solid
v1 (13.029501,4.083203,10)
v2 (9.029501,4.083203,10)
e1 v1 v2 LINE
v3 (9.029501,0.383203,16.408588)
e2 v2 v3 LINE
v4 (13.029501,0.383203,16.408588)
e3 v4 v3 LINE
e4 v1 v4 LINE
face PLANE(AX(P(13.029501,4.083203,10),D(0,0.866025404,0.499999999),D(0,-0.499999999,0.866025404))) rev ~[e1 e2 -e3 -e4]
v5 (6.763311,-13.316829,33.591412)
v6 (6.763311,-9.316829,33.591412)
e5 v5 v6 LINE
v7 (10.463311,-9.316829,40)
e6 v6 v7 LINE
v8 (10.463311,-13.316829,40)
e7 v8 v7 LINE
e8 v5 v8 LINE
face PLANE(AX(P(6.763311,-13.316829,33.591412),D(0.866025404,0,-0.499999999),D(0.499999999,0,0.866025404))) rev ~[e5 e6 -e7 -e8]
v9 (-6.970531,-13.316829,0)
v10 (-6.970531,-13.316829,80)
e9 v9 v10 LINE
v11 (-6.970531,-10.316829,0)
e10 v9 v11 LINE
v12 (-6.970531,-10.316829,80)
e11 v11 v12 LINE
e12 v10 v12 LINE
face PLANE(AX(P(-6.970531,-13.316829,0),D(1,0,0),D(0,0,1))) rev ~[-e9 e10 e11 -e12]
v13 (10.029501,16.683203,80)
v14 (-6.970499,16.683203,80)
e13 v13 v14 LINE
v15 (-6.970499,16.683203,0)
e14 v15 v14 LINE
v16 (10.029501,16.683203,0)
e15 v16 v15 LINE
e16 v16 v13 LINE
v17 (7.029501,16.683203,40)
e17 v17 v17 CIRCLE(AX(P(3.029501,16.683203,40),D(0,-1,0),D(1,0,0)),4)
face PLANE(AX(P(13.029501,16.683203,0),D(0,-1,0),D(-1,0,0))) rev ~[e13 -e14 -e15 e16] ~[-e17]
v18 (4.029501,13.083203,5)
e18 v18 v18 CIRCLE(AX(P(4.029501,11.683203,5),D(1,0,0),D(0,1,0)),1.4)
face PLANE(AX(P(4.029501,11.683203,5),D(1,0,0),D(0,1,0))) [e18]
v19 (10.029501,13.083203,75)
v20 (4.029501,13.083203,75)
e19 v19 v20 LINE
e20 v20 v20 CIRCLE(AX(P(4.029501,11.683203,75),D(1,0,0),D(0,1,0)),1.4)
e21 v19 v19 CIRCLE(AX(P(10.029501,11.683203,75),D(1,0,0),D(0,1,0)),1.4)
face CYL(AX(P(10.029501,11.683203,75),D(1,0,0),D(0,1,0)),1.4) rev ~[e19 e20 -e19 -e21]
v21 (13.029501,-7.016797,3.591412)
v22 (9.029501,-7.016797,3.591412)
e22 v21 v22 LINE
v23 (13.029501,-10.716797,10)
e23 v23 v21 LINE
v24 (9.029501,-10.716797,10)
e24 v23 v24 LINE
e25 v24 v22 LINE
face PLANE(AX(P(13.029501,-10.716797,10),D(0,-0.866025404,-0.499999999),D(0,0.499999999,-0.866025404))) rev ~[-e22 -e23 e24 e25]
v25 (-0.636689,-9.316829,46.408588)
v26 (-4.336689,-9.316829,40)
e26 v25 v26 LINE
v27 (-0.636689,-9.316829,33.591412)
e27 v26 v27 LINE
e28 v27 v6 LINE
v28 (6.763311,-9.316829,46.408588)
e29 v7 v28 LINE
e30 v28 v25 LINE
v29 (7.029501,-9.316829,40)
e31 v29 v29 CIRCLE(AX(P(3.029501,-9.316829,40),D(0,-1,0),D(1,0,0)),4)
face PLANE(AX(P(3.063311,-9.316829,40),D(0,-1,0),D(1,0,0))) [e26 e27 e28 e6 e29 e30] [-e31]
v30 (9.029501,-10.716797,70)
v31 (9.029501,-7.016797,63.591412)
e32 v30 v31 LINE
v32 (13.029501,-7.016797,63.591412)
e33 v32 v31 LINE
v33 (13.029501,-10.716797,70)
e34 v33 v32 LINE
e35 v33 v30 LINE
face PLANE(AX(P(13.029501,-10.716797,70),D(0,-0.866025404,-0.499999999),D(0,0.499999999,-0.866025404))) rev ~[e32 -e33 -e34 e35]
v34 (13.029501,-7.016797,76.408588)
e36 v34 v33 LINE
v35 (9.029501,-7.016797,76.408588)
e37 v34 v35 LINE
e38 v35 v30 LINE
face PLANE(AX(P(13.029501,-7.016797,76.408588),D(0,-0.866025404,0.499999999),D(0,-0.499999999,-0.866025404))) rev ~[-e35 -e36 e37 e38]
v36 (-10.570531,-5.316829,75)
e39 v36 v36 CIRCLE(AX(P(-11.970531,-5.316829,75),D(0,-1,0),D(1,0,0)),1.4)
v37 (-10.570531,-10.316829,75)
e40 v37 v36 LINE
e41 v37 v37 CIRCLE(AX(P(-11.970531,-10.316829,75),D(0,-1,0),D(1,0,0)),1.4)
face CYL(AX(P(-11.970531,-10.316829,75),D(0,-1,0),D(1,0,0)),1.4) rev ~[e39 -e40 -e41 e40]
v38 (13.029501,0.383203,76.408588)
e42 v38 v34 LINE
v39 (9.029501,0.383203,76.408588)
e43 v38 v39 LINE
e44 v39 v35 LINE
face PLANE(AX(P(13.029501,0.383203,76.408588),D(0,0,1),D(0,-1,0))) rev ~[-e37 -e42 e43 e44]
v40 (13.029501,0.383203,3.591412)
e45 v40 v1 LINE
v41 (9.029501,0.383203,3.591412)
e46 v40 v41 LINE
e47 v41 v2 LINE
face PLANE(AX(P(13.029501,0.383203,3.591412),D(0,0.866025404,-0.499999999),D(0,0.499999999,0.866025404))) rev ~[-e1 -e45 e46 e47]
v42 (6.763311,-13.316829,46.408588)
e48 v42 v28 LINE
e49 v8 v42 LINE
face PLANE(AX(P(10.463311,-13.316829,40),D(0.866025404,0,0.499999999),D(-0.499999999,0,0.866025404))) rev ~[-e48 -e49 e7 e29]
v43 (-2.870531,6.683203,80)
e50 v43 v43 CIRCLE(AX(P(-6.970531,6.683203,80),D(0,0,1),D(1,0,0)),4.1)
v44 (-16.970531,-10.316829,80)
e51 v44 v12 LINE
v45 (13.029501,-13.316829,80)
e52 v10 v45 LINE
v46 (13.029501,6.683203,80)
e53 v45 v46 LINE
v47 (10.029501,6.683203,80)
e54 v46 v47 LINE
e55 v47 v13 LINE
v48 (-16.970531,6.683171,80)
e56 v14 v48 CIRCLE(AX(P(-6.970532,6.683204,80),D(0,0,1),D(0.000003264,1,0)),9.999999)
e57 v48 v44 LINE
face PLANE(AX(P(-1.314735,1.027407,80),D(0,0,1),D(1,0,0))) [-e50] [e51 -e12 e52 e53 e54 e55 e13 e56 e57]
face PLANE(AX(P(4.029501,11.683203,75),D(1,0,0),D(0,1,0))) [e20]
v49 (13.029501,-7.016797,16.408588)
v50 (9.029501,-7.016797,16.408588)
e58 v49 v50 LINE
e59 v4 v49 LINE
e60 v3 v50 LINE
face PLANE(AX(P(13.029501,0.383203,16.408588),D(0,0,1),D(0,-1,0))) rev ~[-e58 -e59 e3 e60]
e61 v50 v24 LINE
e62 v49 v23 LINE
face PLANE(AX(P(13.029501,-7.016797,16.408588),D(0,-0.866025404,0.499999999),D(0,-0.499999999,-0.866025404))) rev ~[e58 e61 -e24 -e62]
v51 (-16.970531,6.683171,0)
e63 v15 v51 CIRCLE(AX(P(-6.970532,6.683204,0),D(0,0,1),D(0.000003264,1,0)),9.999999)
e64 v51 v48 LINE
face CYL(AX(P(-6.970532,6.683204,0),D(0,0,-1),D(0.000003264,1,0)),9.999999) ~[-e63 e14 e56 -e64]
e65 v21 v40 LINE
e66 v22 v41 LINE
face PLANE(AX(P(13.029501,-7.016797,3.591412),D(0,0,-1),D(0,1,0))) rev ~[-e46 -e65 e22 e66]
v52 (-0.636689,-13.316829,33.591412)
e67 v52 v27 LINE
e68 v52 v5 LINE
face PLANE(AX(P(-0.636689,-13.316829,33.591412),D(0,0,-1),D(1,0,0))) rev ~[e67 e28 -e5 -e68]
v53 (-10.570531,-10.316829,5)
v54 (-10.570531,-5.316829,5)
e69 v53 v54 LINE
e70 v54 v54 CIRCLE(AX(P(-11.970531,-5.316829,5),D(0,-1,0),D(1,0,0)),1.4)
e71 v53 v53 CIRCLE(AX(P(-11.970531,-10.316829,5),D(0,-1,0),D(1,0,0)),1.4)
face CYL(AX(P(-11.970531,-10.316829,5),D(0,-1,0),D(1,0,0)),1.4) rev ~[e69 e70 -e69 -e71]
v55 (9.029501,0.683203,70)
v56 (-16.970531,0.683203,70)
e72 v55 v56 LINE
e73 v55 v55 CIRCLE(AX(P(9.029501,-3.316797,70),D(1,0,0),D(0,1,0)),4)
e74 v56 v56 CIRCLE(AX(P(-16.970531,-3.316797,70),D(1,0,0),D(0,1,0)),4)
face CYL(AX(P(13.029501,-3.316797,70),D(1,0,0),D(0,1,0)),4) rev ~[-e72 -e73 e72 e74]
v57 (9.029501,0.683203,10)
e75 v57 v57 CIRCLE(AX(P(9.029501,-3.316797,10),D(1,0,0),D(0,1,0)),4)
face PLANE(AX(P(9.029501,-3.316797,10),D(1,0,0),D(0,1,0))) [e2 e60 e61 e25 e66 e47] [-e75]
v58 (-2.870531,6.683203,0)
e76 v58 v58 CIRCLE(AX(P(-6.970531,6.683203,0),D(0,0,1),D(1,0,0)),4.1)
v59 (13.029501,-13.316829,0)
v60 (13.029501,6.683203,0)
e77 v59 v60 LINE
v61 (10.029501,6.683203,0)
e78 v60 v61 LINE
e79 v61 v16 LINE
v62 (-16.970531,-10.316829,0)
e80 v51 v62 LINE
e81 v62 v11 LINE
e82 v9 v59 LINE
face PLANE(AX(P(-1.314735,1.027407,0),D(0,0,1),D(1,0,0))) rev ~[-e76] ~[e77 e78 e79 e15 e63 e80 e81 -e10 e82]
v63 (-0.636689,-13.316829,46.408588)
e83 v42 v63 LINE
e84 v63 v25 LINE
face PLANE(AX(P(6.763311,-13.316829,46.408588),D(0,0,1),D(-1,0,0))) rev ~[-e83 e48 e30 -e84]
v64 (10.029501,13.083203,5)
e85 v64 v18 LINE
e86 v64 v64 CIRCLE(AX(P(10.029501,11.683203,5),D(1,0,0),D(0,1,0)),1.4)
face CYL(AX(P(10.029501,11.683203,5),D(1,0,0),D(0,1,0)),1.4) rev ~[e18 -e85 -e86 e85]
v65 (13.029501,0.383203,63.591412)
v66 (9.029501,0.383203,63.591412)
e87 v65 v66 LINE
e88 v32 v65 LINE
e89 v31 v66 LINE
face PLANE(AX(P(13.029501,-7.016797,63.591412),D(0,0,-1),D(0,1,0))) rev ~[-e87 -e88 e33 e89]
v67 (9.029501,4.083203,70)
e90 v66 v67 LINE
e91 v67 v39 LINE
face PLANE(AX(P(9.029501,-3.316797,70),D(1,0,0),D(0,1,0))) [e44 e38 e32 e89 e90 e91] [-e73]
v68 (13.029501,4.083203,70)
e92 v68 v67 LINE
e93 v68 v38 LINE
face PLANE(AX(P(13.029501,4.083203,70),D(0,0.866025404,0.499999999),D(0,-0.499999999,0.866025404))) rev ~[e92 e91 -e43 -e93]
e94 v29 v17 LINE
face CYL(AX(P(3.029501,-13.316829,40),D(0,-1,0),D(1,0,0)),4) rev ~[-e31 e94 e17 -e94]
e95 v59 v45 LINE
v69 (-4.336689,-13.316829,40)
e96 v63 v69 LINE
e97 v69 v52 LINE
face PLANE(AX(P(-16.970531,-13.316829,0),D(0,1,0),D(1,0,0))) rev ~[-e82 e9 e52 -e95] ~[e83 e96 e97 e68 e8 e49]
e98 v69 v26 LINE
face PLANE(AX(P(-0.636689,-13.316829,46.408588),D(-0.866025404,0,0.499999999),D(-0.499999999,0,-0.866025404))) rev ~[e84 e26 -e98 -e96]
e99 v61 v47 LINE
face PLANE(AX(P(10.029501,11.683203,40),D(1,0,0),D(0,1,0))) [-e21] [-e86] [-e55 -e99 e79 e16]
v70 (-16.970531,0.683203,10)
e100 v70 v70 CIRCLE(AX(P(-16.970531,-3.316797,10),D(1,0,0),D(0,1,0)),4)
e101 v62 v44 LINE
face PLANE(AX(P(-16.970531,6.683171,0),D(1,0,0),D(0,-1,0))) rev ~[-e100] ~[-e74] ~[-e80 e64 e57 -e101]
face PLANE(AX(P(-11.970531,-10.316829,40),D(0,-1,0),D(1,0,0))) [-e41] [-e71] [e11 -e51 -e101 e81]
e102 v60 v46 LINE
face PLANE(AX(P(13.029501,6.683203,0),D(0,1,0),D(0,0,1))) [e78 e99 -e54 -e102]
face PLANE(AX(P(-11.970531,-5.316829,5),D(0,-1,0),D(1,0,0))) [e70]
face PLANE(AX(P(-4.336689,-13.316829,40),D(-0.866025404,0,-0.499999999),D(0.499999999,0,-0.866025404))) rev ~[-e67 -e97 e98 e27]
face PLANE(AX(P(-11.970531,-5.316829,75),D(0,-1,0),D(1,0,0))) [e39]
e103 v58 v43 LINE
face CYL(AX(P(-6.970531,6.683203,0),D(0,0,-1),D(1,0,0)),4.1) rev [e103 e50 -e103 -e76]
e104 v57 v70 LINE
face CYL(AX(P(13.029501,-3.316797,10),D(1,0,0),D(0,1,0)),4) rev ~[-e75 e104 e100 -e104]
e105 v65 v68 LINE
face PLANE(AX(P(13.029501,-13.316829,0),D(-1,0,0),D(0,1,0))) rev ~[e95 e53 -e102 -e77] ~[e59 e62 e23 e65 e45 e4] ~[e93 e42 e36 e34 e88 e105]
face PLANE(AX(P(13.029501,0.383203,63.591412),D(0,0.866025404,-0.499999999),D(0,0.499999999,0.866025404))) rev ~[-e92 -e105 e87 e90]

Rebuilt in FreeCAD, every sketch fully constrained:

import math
import FreeCAD as App
import Part
import Sketcher

V = App.Vector
Q = App.Units.Quantity


def add_polygon(sketch, points):
    """Adds a closed chain of lines whose ends are joined by coincident constraints."""
    first, n = sketch.GeometryCount, len(points)
    for a, b in zip(points, points[1:] + points[:1]):
        sketch.addGeometry(Part.LineSegment(App.Vector(*a, 0), App.Vector(*b, 0)), False)
    for i in range(n):
        sketch.addConstraint(Sketcher.Constraint("Coincident", first + i, 2, first + (i + 1) % n, 1))

doc = App.newDocument("Part")
body = doc.addObject("PartDesign::Body", "Body")
body.AllowCompound = True

sketch1 = body.newObject("Sketcher::SketchObject", "Sketch")
sketch1.AttachmentSupport = (doc.getObject("YZ_Plane"), [""])
sketch1.MapMode = "FlatFace"
sketch1.AttachmentOffset = App.Placement(V(0, 0, 10.029501), App.Rotation())
sketch1.addGeometry([
    Part.Circle(V(11.7, 75, 0), V(0, 0, 1), 1.4),
    Part.Circle(V(11.7, 5, 0), V(0, 0, 1), 1.4),
], False)
sketch1.addConstraint([
    Sketcher.Constraint("Equal", 0, 1),
    Sketcher.Constraint("Vertical", 0, 3, 1, 3),
    Sketcher.Constraint("Diameter", 0, Q("2.8 mm")),
    Sketcher.Constraint("DistanceY", -1, 1, 0, 3, Q("75 mm")),
    Sketcher.Constraint("DistanceY", -1, 1, 1, 3, Q("5 mm")),
    Sketcher.Constraint("DistanceX", -1, 1, 0, 3, Q("11.683203 mm")),
])
pad1 = body.newObject("PartDesign::Pad", "Pad")
pad1.Profile = sketch1
pad1.Length = 6
pad1.Reversed = True
body2 = doc.addObject("PartDesign::Body", "Body001")

sketch2 = body2.newObject("Sketcher::SketchObject", "Sketch001")
sketch2.AttachmentSupport = (doc.getObject("XZ_Plane001"), [""])
sketch2.MapMode = "FlatFace"
sketch2.AttachmentOffset = App.Placement(V(0, 0, 13.316829), App.Rotation())
sketch2.addGeometry(Part.Circle(V(3, 40, 0), V(0, 0, 1), 4), False)
sketch2.addConstraint([
    Sketcher.Constraint("Diameter", 0, Q("8 mm")),
    Sketcher.Constraint("DistanceY", -1, 1, 0, 3, Q("40 mm")),
    Sketcher.Constraint("DistanceX", -1, 1, 0, 3, Q("3.029501 mm")),
])
pad2 = body2.newObject("PartDesign::Pad", "Pad001")
pad2.Profile = sketch2
pad2.Length = 31
pad2.Reversed = True
body3 = doc.addObject("PartDesign::Body", "Body002")
body3.AllowCompound = True

sketch3 = body3.newObject("Sketcher::SketchObject", "Sketch002")
sketch3.AttachmentSupport = (doc.getObject("YZ_Plane002"), [""])
sketch3.MapMode = "FlatFace"
sketch3.AttachmentOffset = App.Placement(V(0, 0, 13.029501), App.Rotation())
sketch3.addGeometry([
    Part.Circle(V(-3.3, 70, 0), V(0, 0, 1), 4),
    Part.Circle(V(-3.3, 10, 0), V(0, 0, 1), 4),
], False)
sketch3.addConstraint([
    Sketcher.Constraint("Equal", 0, 1),
    Sketcher.Constraint("Vertical", 0, 3, 1, 3),
    Sketcher.Constraint("Diameter", 0, Q("8 mm")),
    Sketcher.Constraint("DistanceY", -1, 1, 0, 3, Q("70 mm")),
    Sketcher.Constraint("DistanceY", -1, 1, 1, 3, Q("10 mm")),
    Sketcher.Constraint("DistanceX", 0, 3, -1, 1, Q("3.316797 mm")),
])
pad3 = body3.newObject("PartDesign::Pad", "Pad002")
pad3.Profile = sketch3
pad3.Length = 31
pad3.Reversed = True
body4 = doc.addObject("PartDesign::Body", "Body003")
body4.AllowCompound = True

sketch4 = body4.newObject("Sketcher::SketchObject", "Sketch003")
sketch4.AttachmentSupport = (doc.getObject("XZ_Plane003"), [""])
sketch4.MapMode = "FlatFace"
sketch4.AttachmentOffset = App.Placement(V(0, 0, 10.316829), App.Rotation())
sketch4.addGeometry([
    Part.Circle(V(-12, 75, 0), V(0, 0, 1), 1.4),
    Part.Circle(V(-12, 5, 0), V(0, 0, 1), 1.4),
], False)
sketch4.addConstraint([
    Sketcher.Constraint("Equal", 0, 1),
    Sketcher.Constraint("Vertical", 0, 3, 1, 3),
    Sketcher.Constraint("Diameter", 0, Q("2.8 mm")),
    Sketcher.Constraint("DistanceY", -1, 1, 0, 3, Q("75 mm")),
    Sketcher.Constraint("DistanceY", -1, 1, 1, 3, Q("5 mm")),
    Sketcher.Constraint("DistanceX", 0, 3, -1, 1, Q("11.970531 mm")),
])
pad4 = body4.newObject("PartDesign::Pad", "Pad003")
pad4.Profile = sketch4
pad4.Length = 5
pad4.Reversed = True
body5 = doc.addObject("PartDesign::Body", "Body004")
body5.AllowCompound = True

sketch5 = body5.newObject("Sketcher::SketchObject", "Sketch004")
sketch5.AttachmentSupport = (doc.getObject("YZ_Plane004"), [""])
sketch5.MapMode = "FlatFace"
sketch5.AttachmentOffset = App.Placement(V(0, 0, 13.029501), App.Rotation())
add_polygon(sketch5, [(4, 70), (0, 76), (-7, 76), (-11, 70), (-7, 64), (0, 64)])
add_polygon(sketch5, [(0, 4), (4, 10), (0, 16), (-7, 16), (-11, 10), (-7, 4)])
sketch5.addConstraint([
    Sketcher.Constraint("Horizontal", 1),
    Sketcher.Constraint("Horizontal", 4),
    Sketcher.Constraint("Horizontal", 8),
    Sketcher.Constraint("Horizontal", 11),
    Sketcher.Constraint("Parallel", 0, 3),
    Sketcher.Constraint("Parallel", 2, 5),
    Sketcher.Constraint("Parallel", 5, 6),
    Sketcher.Constraint("Parallel", 3, 7),
    Sketcher.Constraint("Parallel", 6, 9),
    Sketcher.Constraint("Parallel", 7, 10),
    Sketcher.Constraint("Horizontal", 2, 2, 5, 2),
    Sketcher.Constraint("Horizontal", 6, 2, 9, 2),
    Sketcher.Constraint("Vertical", 1, 2, 3, 2),
    Sketcher.Constraint("Vertical", 0, 2, 4, 2),
    Sketcher.Constraint("Vertical", 5, 2, 6, 2),
    Sketcher.Constraint("Vertical", 4, 2, 7, 2),
    Sketcher.Constraint("Vertical", 3, 2, 8, 2),
    Sketcher.Constraint("Vertical", 8, 2, 10, 2),
    Sketcher.Constraint("Angle", 0, Q("120 deg")),
    Sketcher.Constraint("DistanceX", 1, 2, 1, 1, Q("7.4 mm")),
    Sketcher.Constraint("DistanceY", -1, 1, 2, 2, Q("70 mm")),
    Sketcher.Constraint("DistanceY", -1, 1, 6, 2, Q("10 mm")),
    Sketcher.Constraint("Distance", 0, Q("7.4 mm")),
    Sketcher.Constraint("DistanceX", -1, 1, 0, 2, Q("0.383203 mm")),
])
pad5 = body5.newObject("PartDesign::Pad", "Pad004")
pad5.Profile = sketch5
pad5.Length = 4
pad5.Reversed = True
body6 = doc.addObject("PartDesign::Body", "Body005")

sketch6 = body6.newObject("Sketcher::SketchObject", "Sketch005")
sketch6.AttachmentSupport = (doc.getObject("YZ_Plane005"), [""])
sketch6.MapMode = "FlatFace"
sketch6.AttachmentOffset = App.Placement(V(0, 0, 13.029501), App.Rotation())
add_polygon(sketch6, [(7, 80), (7, 0), (17, 0), (17, 80)])
sketch6.addConstraint([
    Sketcher.Constraint("Vertical", 0),
    Sketcher.Constraint("Horizontal", 1),
    Sketcher.Constraint("Vertical", 2),
    Sketcher.Constraint("Horizontal", 3),
    Sketcher.Constraint("PointOnObject", 0, 2, -1),
    Sketcher.Constraint("DistanceX", 1, 1, 1, 2, Q("10 mm")),
    Sketcher.Constraint("DistanceY", 0, 2, 0, 1, Q("80 mm")),
    Sketcher.Constraint("DistanceX", -1, 1, 0, 2, Q("6.683203 mm")),
])
pad6 = body6.newObject("PartDesign::Pad", "Pad005")
pad6.Profile = sketch6
pad6.Length = 3
pad6.Reversed = True
body7 = doc.addObject("PartDesign::Body", "Body006")

sketch7 = body7.newObject("Sketcher::SketchObject", "Sketch006")
sketch7.AttachmentSupport = (doc.getObject("XZ_Plane006"), [""])
sketch7.MapMode = "FlatFace"
sketch7.AttachmentOffset = App.Placement(V(0, 0, 13.316829), App.Rotation())
add_polygon(sketch7, [(-17, 80), (-17, 0), (-7, 0), (-7, 80)])
sketch7.addConstraint([
    Sketcher.Constraint("Vertical", 0),
    Sketcher.Constraint("Horizontal", 1),
    Sketcher.Constraint("Vertical", 2),
    Sketcher.Constraint("Horizontal", 3),
    Sketcher.Constraint("PointOnObject", 0, 2, -1),
    Sketcher.Constraint("DistanceX", 1, 1, 1, 2, Q("10 mm")),
    Sketcher.Constraint("DistanceY", 0, 2, 0, 1, Q("80 mm")),
    Sketcher.Constraint("DistanceX", 0, 2, -1, 1, Q("16.970531 mm")),
])
pad7 = body7.newObject("PartDesign::Pad", "Pad006")
pad7.Profile = sketch7
pad7.Length = 3
pad7.Reversed = True
body8 = doc.addObject("PartDesign::Body", "Body007")
body8.AllowCompound = True

sketch8 = body8.newObject("Sketcher::SketchObject", "Sketch007")
sketch8.AttachmentSupport = (doc.getObject("XZ_Plane007"), [""])
sketch8.MapMode = "FlatFace"
sketch8.AttachmentOffset = App.Placement(V(0, 0, 13.316829), App.Rotation())
add_polygon(sketch8, [(7, 34), (10, 40), (7, 46), (-1, 46), (-4, 40), (-1, 34)])
sketch8.addConstraint([
    Sketcher.Constraint("Horizontal", 2),
    Sketcher.Constraint("Horizontal", 5),
    Sketcher.Constraint("Parallel", 0, 3),
    Sketcher.Constraint("Parallel", 1, 4),
    Sketcher.Constraint("Horizontal", 0, 2, 3, 2),
    Sketcher.Constraint("Vertical", 2, 2, 4, 2),
    Sketcher.Constraint("Vertical", 1, 2, 5, 2),
    Sketcher.Constraint("Angle", 0, Q("60 deg")),
    Sketcher.Constraint("DistanceX", 2, 2, 2, 1, Q("7.4 mm")),
    Sketcher.Constraint("DistanceY", -1, 1, 0, 2, Q("40 mm")),
    Sketcher.Constraint("Distance", 0, Q("7.4 mm")),
    Sketcher.Constraint("DistanceX", -1, 1, 0, 2, Q("10.463311 mm")),
])
pad8 = body8.newObject("PartDesign::Pad", "Pad007")
pad8.Profile = sketch8
pad8.Length = 4
pad8.Reversed = True
doc.recompute()

boolean = body8.newObject("PartDesign::Boolean", "Boolean")
boolean.Type = "Fuse"
boolean.addObjects([body])
doc.recompute()

boolean2 = body8.newObject("PartDesign::Boolean", "Boolean001")
boolean2.Type = "Fuse"
boolean2.addObjects([body2])
doc.recompute()

boolean3 = body8.newObject("PartDesign::Boolean", "Boolean002")
boolean3.Type = "Fuse"
boolean3.addObjects([body3])
doc.recompute()

boolean4 = body8.newObject("PartDesign::Boolean", "Boolean003")
boolean4.Type = "Fuse"
boolean4.addObjects([body4])
doc.recompute()

boolean5 = body8.newObject("PartDesign::Boolean", "Boolean004")
boolean5.Type = "Fuse"
boolean5.addObjects([body5])
doc.recompute()

boolean6 = body8.newObject("PartDesign::Boolean", "Boolean005")
boolean6.Type = "Fuse"
boolean6.addObjects([body6])
doc.recompute()

boolean7 = body8.newObject("PartDesign::Boolean", "Boolean006")
boolean7.Type = "Fuse"
boolean7.addObjects([body7])
body9 = doc.addObject("PartDesign::Body", "Body008")

sketch9 = body9.newObject("Sketcher::SketchObject", "Sketch008")
sketch9.AttachmentSupport = (doc.getObject("XY_Plane008"), [""])
sketch9.MapMode = "FlatFace"
sketch9.addGeometry([
    Part.LineSegment(V(-17, 6.7, 0), V(-17, -13.3, 0)),
    Part.LineSegment(V(-17, -13.3, 0), V(13, -13.3, 0)),
    Part.LineSegment(V(13, -13.3, 0), V(13, 16.7, 0)),
    Part.LineSegment(V(13, 16.7, 0), V(-7, 16.7, 0)),
    Part.ArcOfCircle(Part.Circle(V(-7, 6.7, 0), V(0, 0, 1), 10), math.radians(90), math.radians(180)),
    Part.Circle(V(-7, 6.7, 0), V(0, 0, 1), 4.1),
], False)
sketch9.addConstraint([
    Sketcher.Constraint("Coincident", 0, 2, 1, 1),
    Sketcher.Constraint("Coincident", 1, 2, 2, 1),
    Sketcher.Constraint("Coincident", 2, 2, 3, 1),
    Sketcher.Constraint("Coincident", 3, 2, 4, 1),
    Sketcher.Constraint("Coincident", 4, 2, 0, 1),
    Sketcher.Constraint("Vertical", 0),
    Sketcher.Constraint("Horizontal", 1),
    Sketcher.Constraint("Vertical", 2),
    Sketcher.Constraint("Horizontal", 3),
    Sketcher.Constraint("Coincident", 5, 3, 4, 3),
    Sketcher.Constraint("Equal", 3, 0),
    Sketcher.Constraint("Equal", 1, 2),
    Sketcher.Constraint("Radius", 4, Q("9.999999 mm")),
    Sketcher.Constraint("Diameter", 5, Q("8.2 mm")),
    Sketcher.Constraint("DistanceX", 3, 2, 3, 1, Q("20 mm")),
    Sketcher.Constraint("DistanceY", 2, 1, 2, 2, Q("30.000032 mm")),
    Sketcher.Constraint("DistanceX", -1, 1, 1, 2, Q("13.029501 mm")),
    Sketcher.Constraint("DistanceY", 0, 2, -1, 1, Q("13.316829 mm")),
])
pad9 = body9.newObject("PartDesign::Pad", "Pad008")
pad9.Profile = sketch9
pad9.Length = 80
doc.recompute()

boolean8 = body9.newObject("PartDesign::Boolean", "Boolean007")
boolean8.Type = "Cut"
boolean8.addObjects([body8])

doc.recompute()
